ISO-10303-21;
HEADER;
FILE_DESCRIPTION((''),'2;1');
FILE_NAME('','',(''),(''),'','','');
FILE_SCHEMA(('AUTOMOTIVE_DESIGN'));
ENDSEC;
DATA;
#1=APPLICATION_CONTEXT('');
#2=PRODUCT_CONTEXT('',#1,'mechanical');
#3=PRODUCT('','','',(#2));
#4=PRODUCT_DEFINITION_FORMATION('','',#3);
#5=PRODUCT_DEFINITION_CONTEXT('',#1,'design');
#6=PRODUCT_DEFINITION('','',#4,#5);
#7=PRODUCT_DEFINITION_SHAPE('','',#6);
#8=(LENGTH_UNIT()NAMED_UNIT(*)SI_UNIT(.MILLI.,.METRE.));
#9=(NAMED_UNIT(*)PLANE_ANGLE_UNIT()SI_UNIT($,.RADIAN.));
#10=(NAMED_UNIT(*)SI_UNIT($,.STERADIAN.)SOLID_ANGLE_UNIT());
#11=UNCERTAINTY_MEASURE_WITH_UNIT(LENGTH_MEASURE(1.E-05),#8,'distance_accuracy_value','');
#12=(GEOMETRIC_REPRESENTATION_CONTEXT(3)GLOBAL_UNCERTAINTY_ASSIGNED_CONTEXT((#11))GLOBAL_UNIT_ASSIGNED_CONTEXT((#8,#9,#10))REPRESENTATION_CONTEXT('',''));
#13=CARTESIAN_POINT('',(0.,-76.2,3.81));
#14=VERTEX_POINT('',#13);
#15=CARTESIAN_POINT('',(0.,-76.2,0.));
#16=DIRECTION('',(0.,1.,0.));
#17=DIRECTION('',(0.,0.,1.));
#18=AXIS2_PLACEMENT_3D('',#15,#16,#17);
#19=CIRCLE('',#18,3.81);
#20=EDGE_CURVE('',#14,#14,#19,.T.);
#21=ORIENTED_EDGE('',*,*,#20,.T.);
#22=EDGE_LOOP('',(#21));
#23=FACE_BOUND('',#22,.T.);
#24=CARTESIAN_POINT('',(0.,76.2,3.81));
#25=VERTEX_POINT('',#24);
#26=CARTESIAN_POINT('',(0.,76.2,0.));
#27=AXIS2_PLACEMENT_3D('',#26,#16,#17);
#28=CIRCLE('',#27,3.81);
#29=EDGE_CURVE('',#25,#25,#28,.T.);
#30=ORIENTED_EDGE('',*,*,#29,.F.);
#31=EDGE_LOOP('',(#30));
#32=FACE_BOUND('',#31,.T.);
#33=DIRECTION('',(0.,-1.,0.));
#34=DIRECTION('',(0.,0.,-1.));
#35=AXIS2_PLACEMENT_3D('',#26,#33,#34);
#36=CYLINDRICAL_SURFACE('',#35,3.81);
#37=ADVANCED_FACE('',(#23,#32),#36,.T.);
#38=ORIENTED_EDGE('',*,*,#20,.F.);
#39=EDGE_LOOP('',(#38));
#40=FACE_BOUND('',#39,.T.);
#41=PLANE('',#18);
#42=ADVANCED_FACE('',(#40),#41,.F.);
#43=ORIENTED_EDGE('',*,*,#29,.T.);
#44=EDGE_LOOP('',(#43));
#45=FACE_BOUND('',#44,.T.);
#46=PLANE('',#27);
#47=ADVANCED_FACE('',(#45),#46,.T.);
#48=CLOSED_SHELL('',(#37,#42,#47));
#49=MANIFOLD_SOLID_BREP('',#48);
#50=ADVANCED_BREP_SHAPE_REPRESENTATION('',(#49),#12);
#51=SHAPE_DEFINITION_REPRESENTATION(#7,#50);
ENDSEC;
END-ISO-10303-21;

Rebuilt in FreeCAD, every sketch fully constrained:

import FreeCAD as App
import Part
import Sketcher
Q = App.Units.Quantity

doc = App.newDocument("Part")
params = doc.addObject("Spreadsheet::Sheet", "Params")
for row, (alias, value) in enumerate([
    ("sketch1_diameter", "0.3 in"),
    ("pad1_length", "6 in"),
], start=1):
    params.set(f"A{row}", alias)
    params.set(f"B{row}", "=" + value)
    params.setAlias(f"B{row}", alias)

body = doc.addObject("PartDesign::Body", "Body")

# Sketch on XZ plane
sketch1 = body.newObject("Sketcher::SketchObject", "Sketch")
sketch1.AttachmentSupport = (doc.getObject("XZ_Plane"), [""])
sketch1.MapMode = "FlatFace"
sketch1.addGeometry(Part.Circle(App.Vector(0, 0, 0), App.Vector(0, 0, 1), 3.8), False)
sketch1.addConstraint([
    Sketcher.Constraint("Coincident", 0, 3, -1, 1),
    Sketcher.Constraint("Diameter", 0, Q("0.3 in")),
])
sketch1.setExpression("Constraints[1]", "Params.sketch1_diameter")
pad1 = body.newObject("PartDesign::Pad", "Pad")
pad1.Profile = sketch1
pad1.setExpression("Length", "Params.pad1_length")
pad1.Midplane = True

doc.recompute()
